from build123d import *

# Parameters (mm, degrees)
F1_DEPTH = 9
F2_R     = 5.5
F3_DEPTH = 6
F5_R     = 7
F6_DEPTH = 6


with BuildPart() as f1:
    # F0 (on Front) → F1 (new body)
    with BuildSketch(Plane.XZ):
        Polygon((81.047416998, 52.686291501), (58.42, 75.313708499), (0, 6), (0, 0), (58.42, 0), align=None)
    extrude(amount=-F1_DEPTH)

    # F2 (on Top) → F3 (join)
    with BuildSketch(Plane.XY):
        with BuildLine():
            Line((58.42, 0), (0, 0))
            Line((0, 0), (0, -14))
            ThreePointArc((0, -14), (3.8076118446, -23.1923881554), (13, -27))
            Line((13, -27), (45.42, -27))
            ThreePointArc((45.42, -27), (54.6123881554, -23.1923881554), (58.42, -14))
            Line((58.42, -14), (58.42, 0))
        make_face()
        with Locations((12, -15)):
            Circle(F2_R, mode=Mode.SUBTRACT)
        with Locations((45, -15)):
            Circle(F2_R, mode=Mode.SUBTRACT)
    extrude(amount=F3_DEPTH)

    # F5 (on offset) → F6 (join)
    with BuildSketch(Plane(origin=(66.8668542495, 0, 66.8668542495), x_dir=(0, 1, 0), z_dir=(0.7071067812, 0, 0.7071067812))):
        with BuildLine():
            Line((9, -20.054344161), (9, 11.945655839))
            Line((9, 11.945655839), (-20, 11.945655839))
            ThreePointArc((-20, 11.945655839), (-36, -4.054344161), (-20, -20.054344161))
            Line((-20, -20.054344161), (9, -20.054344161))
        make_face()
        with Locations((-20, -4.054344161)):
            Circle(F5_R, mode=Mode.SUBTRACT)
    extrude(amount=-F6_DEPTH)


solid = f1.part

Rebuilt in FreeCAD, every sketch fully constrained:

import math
import FreeCAD as App
import Part
import Sketcher
from FreeCAD import Vector
Q = App.Units.Quantity


def add_polygon(sketch, points):
    """Adds a closed chain of lines whose ends are joined by coincident constraints."""
    first, n = sketch.GeometryCount, len(points)
    for a, b in zip(points, points[1:] + points[:1]):
        sketch.addGeometry(Part.LineSegment(App.Vector(*a, 0), App.Vector(*b, 0)), False)
    for i in range(n):
        sketch.addConstraint(Sketcher.Constraint("Coincident", first + i, 2, first + (i + 1) % n, 1))

doc = App.newDocument("Part")
body = doc.addObject("PartDesign::Body", "Body")

sketch1 = body.newObject("Sketcher::SketchObject", "Sketch")
sketch1.AttachmentSupport = (doc.getObject("XZ_Plane"), [""])
sketch1.MapMode = "FlatFace"
add_polygon(sketch1, [(81.047417, 52.686292), (58.42, 75.313708), (0, 6), (0, 0), (58.42, 0)])
sketch1.addConstraint(Sketcher.Constraint("Vertical", 2))
sketch1.addConstraint(Sketcher.Constraint("Horizontal", 3))
sketch1.addConstraint(Sketcher.Constraint("Coincident", 2, 2, -1, 1))
sketch1.addConstraint(Sketcher.Constraint("Vertical", 0, 2, 3, 2))
sketch1.addConstraint(Sketcher.Constraint("DistanceY", 2, 2, 2, 1, Q("6 mm")))
sketch1.addConstraint(Sketcher.Constraint("Angle", 0, Q("135 deg")))
sketch1.addConstraint(Sketcher.Constraint("Distance", 0, Q("32 mm")))
sketch1.addConstraint(Sketcher.Constraint("DistanceX", 3, 1, 3, 2, Q("58.42 mm")))
sketch1.addConstraint(Sketcher.Constraint("Distance", 1, Q("90.64925 mm")))
pad1 = body.newObject("PartDesign::Pad", "Pad")
pad1.Profile = sketch1
pad1.Length = 9
pad1.Reversed = True

sketch2 = body.newObject("Sketcher::SketchObject", "Sketch001")
sketch2.AttachmentSupport = (doc.getObject("XY_Plane"), [""])
sketch2.MapMode = "FlatFace"
sketch2.addGeometry(Part.LineSegment(Vector(58.42, 0, 0), Vector(0, 0, 0)), False)
sketch2.addGeometry(Part.LineSegment(Vector(0, 0, 0), Vector(0, -14, 0)), False)
sketch2.addGeometry(Part.ArcOfCircle(Part.Circle(Vector(13, -14, 0), Vector(0, 0, 1), 13), math.radians(180), math.radians(270)), False)
sketch2.addGeometry(Part.LineSegment(Vector(13, -27, 0), Vector(45.42, -27, 0)), False)
sketch2.addGeometry(Part.ArcOfCircle(Part.Circle(Vector(45.42, -14, 0), Vector(0, 0, 1), 13), math.radians(-90), math.radians(0)), False)
sketch2.addGeometry(Part.LineSegment(Vector(58.42, -14, 0), Vector(58.42, 0, 0)), False)
sketch2.addGeometry(Part.Circle(Vector(12, -15, 0), Vector(0, 0, 1), 5.5), False)
sketch2.addGeometry(Part.Circle(Vector(45, -15, 0), Vector(0, 0, 1), 5.5), False)
sketch2.addConstraint(Sketcher.Constraint("Coincident", 0, 2, 1, 1))
sketch2.addConstraint(Sketcher.Constraint("Tangent", 1, 2, 2, 1))
sketch2.addConstraint(Sketcher.Constraint("Tangent", 2, 2, 3, 1))
sketch2.addConstraint(Sketcher.Constraint("Tangent", 3, 2, 4, 1))
sketch2.addConstraint(Sketcher.Constraint("Tangent", 4, 2, 5, 1))
sketch2.addConstraint(Sketcher.Constraint("Coincident", 5, 2, 0, 1))
sketch2.addConstraint(Sketcher.Constraint("Horizontal", 0))
sketch2.addConstraint(Sketcher.Constraint("Vertical", 1))
sketch2.addConstraint(Sketcher.Constraint("Horizontal", 3))
sketch2.addConstraint(Sketcher.Constraint("Vertical", 5))
sketch2.addConstraint(Sketcher.Constraint("Coincident", 0, 2, -1, 1))
sketch2.addConstraint(Sketcher.Constraint("Equal", 2, 4))
sketch2.addConstraint(Sketcher.Constraint("Equal", 6, 7))
sketch2.addConstraint(Sketcher.Constraint("Horizontal", 6, 3, 7, 3))
sketch2.addConstraint(Sketcher.Constraint("Diameter", 6, Q("11 mm")))
sketch2.addConstraint(Sketcher.Constraint("Radius", 2, Q("13 mm")))
sketch2.addConstraint(Sketcher.Constraint("DistanceY", 1, 2, 1, 1, Q("14 mm")))
sketch2.addConstraint(Sketcher.Constraint("DistanceX", -1, 1, 6, 3, Q("12 mm")))
sketch2.addConstraint(Sketcher.Constraint("DistanceY", 6, 3, -1, 1, Q("15 mm")))
sketch2.addConstraint(Sketcher.Constraint("DistanceX", -1, 1, 7, 3, Q("45 mm")))
sketch2.addConstraint(Sketcher.Constraint("DistanceX", 0, 2, 0, 1, Q("58.42 mm")))
pad2 = body.newObject("PartDesign::Pad", "Pad001")
pad2.Profile = sketch2
pad2.Length = 6

sketch3 = body.newObject("Sketcher::SketchObject", "Sketch002")
sketch3.Placement = App.Placement(Vector(66.866854, 0, 66.866854), App.Rotation(Vector(0, 1, 0), Vector(-0.707106781, 0, 0.707106781), Vector(0.707106781, 0, 0.707106781), "ZXY"))
sketch3.addGeometry(Part.LineSegment(Vector(9, -20.054344, 0), Vector(9, 11.945656, 0)), False)
sketch3.addGeometry(Part.LineSegment(Vector(9, 11.945656, 0), Vector(-20, 11.945656, 0)), False)
sketch3.addGeometry(Part.ArcOfCircle(Part.Circle(Vector(-20, -4.054344, 0), Vector(0, 0, 1), 16), math.radians(90), math.radians(270)), False)
sketch3.addGeometry(Part.LineSegment(Vector(-20, -20.054344, 0), Vector(9, -20.054344, 0)), False)
sketch3.addGeometry(Part.Circle(Vector(-20, -4.054344, 0), Vector(0, 0, 1), 7), False)
sketch3.addConstraint(Sketcher.Constraint("Coincident", 0, 2, 1, 1))
sketch3.addConstraint(Sketcher.Constraint("Tangent", 1, 2, 2, 1))
sketch3.addConstraint(Sketcher.Constraint("Tangent", 2, 2, 3, 1))
sketch3.addConstraint(Sketcher.Constraint("Coincident", 3, 2, 0, 1))
sketch3.addConstraint(Sketcher.Constraint("Vertical", 0))
sketch3.addConstraint(Sketcher.Constraint("Horizontal", 1))
sketch3.addConstraint(Sketcher.Constraint("Horizontal", 3))
sketch3.addConstraint(Sketcher.Constraint("Coincident", 4, 3, 2, 3))
sketch3.addConstraint(Sketcher.Constraint("Diameter", 4, Q("14 mm")))
sketch3.addConstraint(Sketcher.Constraint("Radius", 2, Q("16 mm")))
sketch3.addConstraint(Sketcher.Constraint("DistanceX", 1, 2, 1, 1, Q("29 mm")))
sketch3.addConstraint(Sketcher.Constraint("DistanceX", 2, 3, -1, 1, Q("20 mm")))
sketch3.addConstraint(Sketcher.Constraint("DistanceY", 2, 3, -1, 1, Q("4.054344 mm")))
pad3 = body.newObject("PartDesign::Pad", "Pad002")
pad3.Profile = sketch3
pad3.Length = 6
pad3.Reversed = True

doc.recompute()
